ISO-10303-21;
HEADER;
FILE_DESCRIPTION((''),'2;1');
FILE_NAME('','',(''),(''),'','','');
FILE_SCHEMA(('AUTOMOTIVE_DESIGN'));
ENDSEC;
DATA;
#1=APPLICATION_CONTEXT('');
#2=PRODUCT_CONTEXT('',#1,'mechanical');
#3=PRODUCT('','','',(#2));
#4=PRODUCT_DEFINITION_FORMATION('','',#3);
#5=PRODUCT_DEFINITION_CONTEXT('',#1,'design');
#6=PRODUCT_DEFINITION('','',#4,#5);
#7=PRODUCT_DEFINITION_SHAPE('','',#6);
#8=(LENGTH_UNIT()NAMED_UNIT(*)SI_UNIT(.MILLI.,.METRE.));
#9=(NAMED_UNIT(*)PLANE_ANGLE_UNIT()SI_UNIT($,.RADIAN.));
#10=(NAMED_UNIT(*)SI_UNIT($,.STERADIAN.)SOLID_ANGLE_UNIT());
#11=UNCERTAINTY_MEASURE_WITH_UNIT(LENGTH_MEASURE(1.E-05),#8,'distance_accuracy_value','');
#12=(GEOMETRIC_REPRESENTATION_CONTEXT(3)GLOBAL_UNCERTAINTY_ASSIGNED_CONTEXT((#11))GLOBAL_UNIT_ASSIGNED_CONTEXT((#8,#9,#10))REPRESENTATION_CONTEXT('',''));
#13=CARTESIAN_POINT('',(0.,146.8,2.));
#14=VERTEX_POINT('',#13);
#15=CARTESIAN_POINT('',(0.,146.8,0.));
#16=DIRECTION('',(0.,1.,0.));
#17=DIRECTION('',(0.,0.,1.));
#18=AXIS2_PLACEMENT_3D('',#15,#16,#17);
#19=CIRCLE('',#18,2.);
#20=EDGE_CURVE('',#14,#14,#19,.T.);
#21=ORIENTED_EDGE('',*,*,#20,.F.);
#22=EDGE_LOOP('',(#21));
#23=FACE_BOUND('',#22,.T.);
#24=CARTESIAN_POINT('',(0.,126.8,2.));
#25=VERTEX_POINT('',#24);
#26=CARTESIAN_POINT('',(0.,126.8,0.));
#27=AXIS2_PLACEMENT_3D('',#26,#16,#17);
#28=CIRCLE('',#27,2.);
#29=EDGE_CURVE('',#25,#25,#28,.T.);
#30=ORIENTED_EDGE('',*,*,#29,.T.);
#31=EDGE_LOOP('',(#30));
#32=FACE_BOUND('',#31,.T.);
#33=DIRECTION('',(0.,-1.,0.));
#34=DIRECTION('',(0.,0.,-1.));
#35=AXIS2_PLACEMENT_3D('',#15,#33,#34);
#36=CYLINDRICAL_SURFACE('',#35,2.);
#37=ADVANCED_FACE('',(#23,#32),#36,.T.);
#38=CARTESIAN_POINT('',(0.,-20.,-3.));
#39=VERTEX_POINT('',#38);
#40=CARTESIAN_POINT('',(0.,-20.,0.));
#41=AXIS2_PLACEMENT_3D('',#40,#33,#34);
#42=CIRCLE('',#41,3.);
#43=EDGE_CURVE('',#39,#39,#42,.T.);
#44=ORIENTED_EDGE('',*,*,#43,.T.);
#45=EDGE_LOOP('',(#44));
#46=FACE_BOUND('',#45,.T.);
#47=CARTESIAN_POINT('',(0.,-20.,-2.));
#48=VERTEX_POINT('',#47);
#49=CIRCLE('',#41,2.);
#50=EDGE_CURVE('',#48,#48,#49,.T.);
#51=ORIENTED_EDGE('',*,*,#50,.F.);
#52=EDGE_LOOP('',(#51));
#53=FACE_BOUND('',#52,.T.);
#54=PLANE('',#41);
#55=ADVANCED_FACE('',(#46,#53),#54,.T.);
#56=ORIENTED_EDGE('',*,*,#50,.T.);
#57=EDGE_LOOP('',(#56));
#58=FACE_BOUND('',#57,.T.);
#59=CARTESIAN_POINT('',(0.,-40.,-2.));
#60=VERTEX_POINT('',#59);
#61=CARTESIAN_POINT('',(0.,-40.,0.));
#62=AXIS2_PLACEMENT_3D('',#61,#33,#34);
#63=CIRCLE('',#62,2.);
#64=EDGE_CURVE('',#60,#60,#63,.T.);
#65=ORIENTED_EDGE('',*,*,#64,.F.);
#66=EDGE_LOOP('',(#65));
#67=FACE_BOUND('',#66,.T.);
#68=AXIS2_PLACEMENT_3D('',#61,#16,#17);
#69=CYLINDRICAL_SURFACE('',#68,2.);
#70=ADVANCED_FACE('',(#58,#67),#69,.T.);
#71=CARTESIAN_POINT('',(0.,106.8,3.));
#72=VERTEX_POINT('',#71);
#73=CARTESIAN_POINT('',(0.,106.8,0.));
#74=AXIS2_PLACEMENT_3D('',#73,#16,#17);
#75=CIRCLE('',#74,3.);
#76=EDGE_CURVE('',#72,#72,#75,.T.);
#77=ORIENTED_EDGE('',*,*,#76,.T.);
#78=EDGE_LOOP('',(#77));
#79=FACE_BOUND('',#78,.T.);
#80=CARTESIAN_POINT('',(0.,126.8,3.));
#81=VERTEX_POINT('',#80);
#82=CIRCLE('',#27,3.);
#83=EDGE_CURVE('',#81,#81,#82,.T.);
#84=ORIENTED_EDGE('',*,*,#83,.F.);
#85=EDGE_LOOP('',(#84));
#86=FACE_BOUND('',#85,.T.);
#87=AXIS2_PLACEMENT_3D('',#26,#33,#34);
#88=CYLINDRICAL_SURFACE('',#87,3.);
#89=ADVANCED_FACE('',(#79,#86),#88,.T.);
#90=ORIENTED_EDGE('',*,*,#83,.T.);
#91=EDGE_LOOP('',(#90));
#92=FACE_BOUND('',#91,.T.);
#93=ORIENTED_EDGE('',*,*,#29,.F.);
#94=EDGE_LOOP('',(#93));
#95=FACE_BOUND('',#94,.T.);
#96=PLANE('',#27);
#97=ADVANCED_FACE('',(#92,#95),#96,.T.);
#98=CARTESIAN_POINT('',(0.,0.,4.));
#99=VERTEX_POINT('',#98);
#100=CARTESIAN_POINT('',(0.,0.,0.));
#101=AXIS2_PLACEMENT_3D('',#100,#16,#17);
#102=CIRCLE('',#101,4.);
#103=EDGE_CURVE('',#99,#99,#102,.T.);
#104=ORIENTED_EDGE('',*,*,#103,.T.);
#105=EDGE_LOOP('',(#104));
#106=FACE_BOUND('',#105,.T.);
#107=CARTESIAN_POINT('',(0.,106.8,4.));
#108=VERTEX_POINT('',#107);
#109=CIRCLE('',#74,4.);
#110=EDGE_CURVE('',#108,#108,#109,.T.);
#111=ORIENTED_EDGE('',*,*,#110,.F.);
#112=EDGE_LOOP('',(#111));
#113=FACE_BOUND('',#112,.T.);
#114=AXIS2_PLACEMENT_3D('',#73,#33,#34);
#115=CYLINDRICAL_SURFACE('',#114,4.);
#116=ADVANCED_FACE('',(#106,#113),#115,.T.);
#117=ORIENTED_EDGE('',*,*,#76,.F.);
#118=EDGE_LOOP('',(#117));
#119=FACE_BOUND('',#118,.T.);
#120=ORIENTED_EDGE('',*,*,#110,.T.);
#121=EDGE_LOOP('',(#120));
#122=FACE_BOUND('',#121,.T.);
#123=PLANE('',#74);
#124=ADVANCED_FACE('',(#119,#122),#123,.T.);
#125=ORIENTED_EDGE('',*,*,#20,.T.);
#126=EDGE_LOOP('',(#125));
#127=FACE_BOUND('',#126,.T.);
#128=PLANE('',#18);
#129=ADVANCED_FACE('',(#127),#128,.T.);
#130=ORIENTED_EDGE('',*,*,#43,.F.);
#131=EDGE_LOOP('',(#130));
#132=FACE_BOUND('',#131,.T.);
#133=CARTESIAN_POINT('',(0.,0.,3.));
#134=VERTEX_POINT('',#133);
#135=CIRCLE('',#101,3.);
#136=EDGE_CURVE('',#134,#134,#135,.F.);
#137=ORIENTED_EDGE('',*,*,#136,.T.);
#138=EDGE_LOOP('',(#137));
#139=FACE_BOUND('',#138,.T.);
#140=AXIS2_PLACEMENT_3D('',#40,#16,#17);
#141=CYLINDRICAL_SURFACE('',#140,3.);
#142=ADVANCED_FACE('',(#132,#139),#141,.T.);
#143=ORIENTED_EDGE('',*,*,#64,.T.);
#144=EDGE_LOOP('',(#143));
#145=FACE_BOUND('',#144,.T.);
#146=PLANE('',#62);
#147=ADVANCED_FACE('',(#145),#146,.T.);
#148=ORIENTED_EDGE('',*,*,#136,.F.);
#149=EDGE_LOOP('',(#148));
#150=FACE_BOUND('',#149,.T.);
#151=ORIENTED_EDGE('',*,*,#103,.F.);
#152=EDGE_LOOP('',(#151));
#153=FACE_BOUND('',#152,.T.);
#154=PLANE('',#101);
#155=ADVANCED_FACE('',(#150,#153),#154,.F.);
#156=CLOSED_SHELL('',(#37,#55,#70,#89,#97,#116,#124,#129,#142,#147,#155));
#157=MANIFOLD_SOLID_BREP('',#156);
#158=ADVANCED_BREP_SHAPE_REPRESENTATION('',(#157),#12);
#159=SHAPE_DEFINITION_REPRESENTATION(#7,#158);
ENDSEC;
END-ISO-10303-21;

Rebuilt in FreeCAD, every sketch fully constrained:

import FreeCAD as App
import Part
import Sketcher

V = App.Vector
Q = App.Units.Quantity

doc = App.newDocument("Part")
body = doc.addObject("PartDesign::Body", "Body")

# Sketch on XZ plane
sketch1 = doc.addObject("Sketcher::SketchObject", "Sketch")
body.addObject(sketch1)
sketch1.AttachmentSupport = (doc.XZ_Plane, [""])
sketch1.MapMode = "FlatFace"
sketch1.addGeometry(Part.Circle(V(0, 0, 0), V(0, 0, 1), 4), False)
sketch1.addConstraint(Sketcher.Constraint("Coincident", 0, 3, -1, 1))
sketch1.addConstraint(Sketcher.Constraint("Diameter", 0, Q("8 mm")))
pad1 = doc.addObject("PartDesign::Pad", "Pad")
body.addObject(pad1)
pad1.Profile = sketch1
pad1.Length = 106.8
pad1.Reversed = True

# Sketch on XZ plane
sketch2 = doc.addObject("Sketcher::SketchObject", "Sketch001")
body.addObject(sketch2)
sketch2.AttachmentSupport = (doc.XZ_Plane, [""])
sketch2.MapMode = "FlatFace"
sketch2.AttachmentOffset = App.Placement(V(0, 0, -106.8), App.Rotation())
sketch2.addGeometry(Part.Circle(V(0, 0, 0), V(0, 0, 1), 3), False)
sketch2.addConstraint(Sketcher.Constraint("Coincident", 0, 3, -1, 1))
sketch2.addConstraint(Sketcher.Constraint("Diameter", 0, Q("6 mm")))
pad2 = doc.addObject("PartDesign::Pad", "Pad001")
body.addObject(pad2)
pad2.Profile = sketch2
pad2.Length = 20
pad2.Reversed = True

# Sketch on XZ plane
sketch3 = doc.addObject("Sketcher::SketchObject", "Sketch002")
body.addObject(sketch3)
sketch3.AttachmentSupport = (doc.XZ_Plane, [""])
sketch3.MapMode = "FlatFace"
sketch3.AttachmentOffset = App.Placement(V(0, 0, -126.8), App.Rotation())
sketch3.addGeometry(Part.Circle(V(0, 0, 0), V(0, 0, 1), 2), False)
sketch3.addConstraint(Sketcher.Constraint("Coincident", 0, 3, -1, 1))
sketch3.addConstraint(Sketcher.Constraint("Diameter", 0, Q("4 mm")))
pad3 = doc.addObject("PartDesign::Pad", "Pad002")
body.addObject(pad3)
pad3.Profile = sketch3
pad3.Length = 20
pad3.Reversed = True

# Sketch on XZ plane
sketch4 = doc.addObject("Sketcher::SketchObject", "Sketch003")
body.addObject(sketch4)
sketch4.AttachmentSupport = (doc.XZ_Plane, [""])
sketch4.MapMode = "FlatFace"
sketch4.AttachmentOffset = App.Placement(V(0, 0, 20), App.Rotation())
sketch4.addGeometry(Part.Circle(V(0, 0, 0), V(0, 0, 1), 3), False)
sketch4.addConstraint(Sketcher.Constraint("Coincident", 0, 3, -1, 1))
sketch4.addConstraint(Sketcher.Constraint("Diameter", 0, Q("6 mm")))
pad4 = doc.addObject("PartDesign::Pad", "Pad003")
body.addObject(pad4)
pad4.Profile = sketch4
pad4.Length = 20
pad4.Reversed = True

# Sketch on XZ plane
sketch5 = doc.addObject("Sketcher::SketchObject", "Sketch004")
body.addObject(sketch5)
sketch5.AttachmentSupport = (doc.XZ_Plane, [""])
sketch5.MapMode = "FlatFace"
sketch5.AttachmentOffset = App.Placement(V(0, 0, 40), App.Rotation())
sketch5.addGeometry(Part.Circle(V(0, 0, 0), V(0, 0, 1), 2), False)
sketch5.addConstraint(Sketcher.Constraint("Coincident", 0, 3, -1, 1))
sketch5.addConstraint(Sketcher.Constraint("Diameter", 0, Q("4 mm")))
pad5 = doc.addObject("PartDesign::Pad", "Pad004")
body.addObject(pad5)
pad5.Profile = sketch5
pad5.Length = 20
pad5.Reversed = True

doc.recompute()
